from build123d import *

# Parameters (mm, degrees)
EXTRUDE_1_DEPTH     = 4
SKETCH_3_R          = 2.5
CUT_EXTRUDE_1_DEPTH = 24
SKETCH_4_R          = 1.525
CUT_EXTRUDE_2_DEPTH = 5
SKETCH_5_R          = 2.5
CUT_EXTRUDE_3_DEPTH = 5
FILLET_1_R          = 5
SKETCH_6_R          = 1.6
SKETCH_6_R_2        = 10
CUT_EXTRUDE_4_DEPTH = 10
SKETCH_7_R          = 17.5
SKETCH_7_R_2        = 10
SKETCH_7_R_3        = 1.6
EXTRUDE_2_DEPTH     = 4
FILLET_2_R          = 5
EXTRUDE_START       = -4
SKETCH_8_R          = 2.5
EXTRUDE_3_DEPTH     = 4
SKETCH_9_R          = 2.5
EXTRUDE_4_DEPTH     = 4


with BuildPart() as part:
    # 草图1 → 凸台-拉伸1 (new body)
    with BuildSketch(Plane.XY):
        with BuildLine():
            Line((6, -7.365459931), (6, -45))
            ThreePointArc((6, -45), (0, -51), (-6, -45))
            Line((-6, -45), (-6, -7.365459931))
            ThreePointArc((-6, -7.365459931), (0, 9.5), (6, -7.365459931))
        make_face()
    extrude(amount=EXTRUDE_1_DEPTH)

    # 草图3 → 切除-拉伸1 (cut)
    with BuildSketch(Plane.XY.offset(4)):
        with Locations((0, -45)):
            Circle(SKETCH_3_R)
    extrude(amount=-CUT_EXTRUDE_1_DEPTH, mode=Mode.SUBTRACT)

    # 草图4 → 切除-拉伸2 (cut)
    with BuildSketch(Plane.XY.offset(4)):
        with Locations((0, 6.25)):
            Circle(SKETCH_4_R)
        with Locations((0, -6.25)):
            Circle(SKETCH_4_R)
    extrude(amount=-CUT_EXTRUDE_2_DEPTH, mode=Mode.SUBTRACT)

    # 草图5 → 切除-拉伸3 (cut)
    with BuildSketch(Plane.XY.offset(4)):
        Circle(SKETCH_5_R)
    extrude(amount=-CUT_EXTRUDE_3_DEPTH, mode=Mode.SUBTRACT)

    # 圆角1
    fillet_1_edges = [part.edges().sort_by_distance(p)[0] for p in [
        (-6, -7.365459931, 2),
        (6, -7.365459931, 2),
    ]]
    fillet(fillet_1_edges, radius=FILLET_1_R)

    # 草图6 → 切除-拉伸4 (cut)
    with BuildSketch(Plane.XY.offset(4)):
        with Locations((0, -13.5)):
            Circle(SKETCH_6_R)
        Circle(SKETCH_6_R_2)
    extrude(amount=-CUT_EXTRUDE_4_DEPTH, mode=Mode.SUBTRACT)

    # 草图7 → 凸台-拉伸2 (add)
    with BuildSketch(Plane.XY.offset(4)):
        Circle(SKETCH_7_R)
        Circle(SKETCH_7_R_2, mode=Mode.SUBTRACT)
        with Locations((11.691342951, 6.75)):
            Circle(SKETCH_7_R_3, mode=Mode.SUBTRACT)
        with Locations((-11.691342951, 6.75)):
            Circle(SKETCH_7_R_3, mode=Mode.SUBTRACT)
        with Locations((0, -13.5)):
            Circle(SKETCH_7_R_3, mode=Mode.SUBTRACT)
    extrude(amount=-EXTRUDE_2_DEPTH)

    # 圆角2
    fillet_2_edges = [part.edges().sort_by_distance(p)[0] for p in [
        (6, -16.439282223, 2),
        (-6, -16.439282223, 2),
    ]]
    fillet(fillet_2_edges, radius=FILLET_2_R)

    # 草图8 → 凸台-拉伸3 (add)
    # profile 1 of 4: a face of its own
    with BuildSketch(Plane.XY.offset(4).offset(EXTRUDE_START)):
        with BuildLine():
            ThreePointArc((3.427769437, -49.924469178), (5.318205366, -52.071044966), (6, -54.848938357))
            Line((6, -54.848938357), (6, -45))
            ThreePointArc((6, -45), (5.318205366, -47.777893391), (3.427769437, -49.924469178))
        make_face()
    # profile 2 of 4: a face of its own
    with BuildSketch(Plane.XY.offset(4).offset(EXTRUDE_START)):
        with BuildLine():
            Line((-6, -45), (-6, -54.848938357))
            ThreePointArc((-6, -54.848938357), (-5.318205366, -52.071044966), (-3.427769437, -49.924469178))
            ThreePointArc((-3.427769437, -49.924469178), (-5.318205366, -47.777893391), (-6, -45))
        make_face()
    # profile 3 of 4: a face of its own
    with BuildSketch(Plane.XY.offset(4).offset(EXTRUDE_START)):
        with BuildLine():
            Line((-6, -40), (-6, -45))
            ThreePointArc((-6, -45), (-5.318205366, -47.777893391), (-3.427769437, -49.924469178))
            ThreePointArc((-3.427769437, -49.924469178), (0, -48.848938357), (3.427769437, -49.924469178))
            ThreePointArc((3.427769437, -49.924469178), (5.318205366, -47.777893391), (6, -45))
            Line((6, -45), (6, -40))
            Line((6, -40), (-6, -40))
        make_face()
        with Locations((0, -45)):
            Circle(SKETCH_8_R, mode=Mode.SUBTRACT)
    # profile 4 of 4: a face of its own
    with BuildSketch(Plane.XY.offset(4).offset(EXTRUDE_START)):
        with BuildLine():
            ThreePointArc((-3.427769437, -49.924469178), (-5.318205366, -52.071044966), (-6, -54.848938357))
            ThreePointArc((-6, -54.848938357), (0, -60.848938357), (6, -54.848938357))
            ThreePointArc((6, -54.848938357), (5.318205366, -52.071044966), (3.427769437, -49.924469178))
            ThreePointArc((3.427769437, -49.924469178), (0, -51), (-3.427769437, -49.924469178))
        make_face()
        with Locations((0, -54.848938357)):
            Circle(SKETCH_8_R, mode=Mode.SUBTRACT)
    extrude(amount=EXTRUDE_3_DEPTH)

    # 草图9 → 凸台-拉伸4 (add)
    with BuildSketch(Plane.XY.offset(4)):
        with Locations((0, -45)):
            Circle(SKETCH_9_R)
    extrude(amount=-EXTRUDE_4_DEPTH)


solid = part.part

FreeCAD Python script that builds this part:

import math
import FreeCAD as App
import Part
import Sketcher

V = App.Vector


def edges_at(feature, points):
    """Names of the edges that pass closest to the given points."""
    edges = feature.Shape.Edges
    near = lambda p: min(range(len(edges)), key=lambda i: edges[i].distToShape(Part.Vertex(*p))[0])
    return sorted({f"Edge{near(p) + 1}" for p in points})

doc = App.newDocument("Part")
params = doc.addObject("Spreadsheet::Sheet", "Params")
for row, (alias, value) in enumerate([
    ("sketch1_radius", "6 mm"),
    ("sketch1_radius2", "9.5 mm"),
    ("pad1_length", "4 mm"),
    ("sketch2_diameter", "5 mm"),
    ("pocket1_length", "24 mm"),
    ("sketch3_diameter", "3.05 mm"),
    ("pocket2_length", "5 mm"),
    ("sketch4_diameter", "5 mm"),
    ("pocket3_length", "5 mm"),
    ("fillet_radius", "5 mm"),
    ("sketch5_diameter", "20 mm"),
    ("sketch5_diameter2", "3.2 mm"),
    ("pocket4_length", "10 mm"),
    ("sketch6_diameter", "35 mm"),
    ("sketch6_diameter2", "20 mm"),
    ("sketch6_diameter3", "3.2 mm"),
    ("pad2_length", "4 mm"),
    ("fillet2_radius", "5 mm"),
    ("sketch7_diameter", "5 mm"),
    ("sketch7_radius", "6 mm"),
    ("pad3_length", "4 mm"),
    ("sketch8_diameter", "5 mm"),
    ("pad4_length", "4 mm"),
], start=1):
    params.set(f"A{row}", alias)
    params.set(f"B{row}", "=" + value)
    params.setAlias(f"B{row}", alias)

body = doc.addObject("PartDesign::Body", "Body")

sketch1 = body.newObject("Sketcher::SketchObject", "Sketch")
sketch1.AttachmentSupport = (doc.getObject("XY_Plane"), [""])
sketch1.MapMode = "FlatFace"
sketch1.addGeometry(Part.LineSegment(V(6, -45, 0), V(6, -7.36546, 0)), False)
sketch1.addGeometry(Part.ArcOfCircle(Part.Circle(V(0, 0, 0), V(0, 0, 1), 9.5), math.radians(-50.833289), math.radians(230.833289)), False)
sketch1.addGeometry(Part.LineSegment(V(-6, -7.36546, 0), V(-6, -45, 0)), False)
sketch1.addGeometry(Part.ArcOfCircle(Part.Circle(V(0, -45, 0), V(0, 0, 1), 6), math.radians(180), math.radians(360)), False)
sketch1.addConstraint(Sketcher.Constraint("Coincident", 0, 2, 1, 1))
sketch1.addConstraint(Sketcher.Constraint("Coincident", 1, 2, 2, 1))
sketch1.addConstraint(Sketcher.Constraint("Tangent", 2, 2, 3, 1))
sketch1.addConstraint(Sketcher.Constraint("Tangent", 3, 2, 0, 1))
sketch1.addConstraint(Sketcher.Constraint("Vertical", 0))
sketch1.addConstraint(Sketcher.Constraint("Vertical", 2))
sketch1.addConstraint(Sketcher.Constraint("Coincident", 1, 3, -1, 1))
sketch1.addConstraint(Sketcher.Constraint("PointOnObject", 3, 3, -2))
sketch1.addConstraint(Sketcher.Constraint("Radius", 3, 6.0))
sketch1.addConstraint(Sketcher.Constraint("Radius", 1, 9.5))
sketch1.addConstraint(Sketcher.Constraint("DistanceY", 3, 3, -1, 1, 45.0))
sketch1.setExpression("Constraints[8]", "Params.sketch1_radius")
sketch1.setExpression("Constraints[9]", "Params.sketch1_radius2")
pad1 = body.newObject("PartDesign::Pad", "Pad")
pad1.Profile = sketch1
pad1.setExpression("Length", "Params.pad1_length")

sketch2 = body.newObject("Sketcher::SketchObject", "Sketch001")
sketch2.AttachmentSupport = (doc.getObject("XY_Plane"), [""])
sketch2.MapMode = "FlatFace"
sketch2.AttachmentOffset = App.Placement(V(0, 0, 4), App.Rotation())
sketch2.addGeometry(Part.Circle(V(0, -45, 0), V(0, 0, 1), 2.5), False)
sketch2.addConstraint(Sketcher.Constraint("PointOnObject", 0, 3, -2))
sketch2.addConstraint(Sketcher.Constraint("Diameter", 0, 5.0))
sketch2.addConstraint(Sketcher.Constraint("DistanceY", 0, 3, -1, 1, 45.0))
sketch2.setExpression("Constraints[1]", "Params.sketch2_diameter")
pocket1 = body.newObject("PartDesign::Pocket", "Pocket")
pocket1.Profile = sketch2
pocket1.setExpression("Length", "Params.pocket1_length")

sketch3 = body.newObject("Sketcher::SketchObject", "Sketch002")
sketch3.AttachmentSupport = (doc.getObject("XY_Plane"), [""])
sketch3.MapMode = "FlatFace"
sketch3.AttachmentOffset = App.Placement(V(0, 0, 4), App.Rotation())
sketch3.addGeometry(Part.Circle(V(0, 6.25, 0), V(0, 0, 1), 1.525), False)
sketch3.addGeometry(Part.Circle(V(0, -6.25, 0), V(0, 0, 1), 1.525), False)
sketch3.addConstraint(Sketcher.Constraint("Equal", 0, 1))
sketch3.addConstraint(Sketcher.Constraint("Symmetric", 0, 3, 1, 3, -1, 1))
sketch3.addConstraint(Sketcher.Constraint("PointOnObject", 0, 3, -2))
sketch3.addConstraint(Sketcher.Constraint("Diameter", 0, 3.05))
sketch3.addConstraint(Sketcher.Constraint("DistanceY", 1, 3, 0, 3, 12.5))
sketch3.setExpression("Constraints[3]", "Params.sketch3_diameter")
pocket2 = body.newObject("PartDesign::Pocket", "Pocket001")
pocket2.Profile = sketch3
pocket2.setExpression("Length", "Params.pocket2_length")

sketch4 = body.newObject("Sketcher::SketchObject", "Sketch003")
sketch4.AttachmentSupport = (doc.getObject("XY_Plane"), [""])
sketch4.MapMode = "FlatFace"
sketch4.AttachmentOffset = App.Placement(V(0, 0, 4), App.Rotation())
sketch4.addGeometry(Part.Circle(V(0, 0, 0), V(0, 0, 1), 2.5), False)
sketch4.addConstraint(Sketcher.Constraint("Coincident", 0, 3, -1, 1))
sketch4.addConstraint(Sketcher.Constraint("Diameter", 0, 5.0))
sketch4.setExpression("Constraints[1]", "Params.sketch4_diameter")
pocket3 = body.newObject("PartDesign::Pocket", "Pocket002")
pocket3.Profile = sketch4
pocket3.setExpression("Length", "Params.pocket3_length")
doc.recompute()

fillet = body.newObject("PartDesign::Fillet", "Fillet")
fillet.Base = (pocket3, edges_at(pocket3, [(-6, -7.365, 2), (6, -7.365, 2)]))
fillet.setExpression("Radius", "Params.fillet_radius")

sketch5 = body.newObject("Sketcher::SketchObject", "Sketch004")
sketch5.AttachmentSupport = (doc.getObject("XY_Plane"), [""])
sketch5.MapMode = "FlatFace"
sketch5.AttachmentOffset = App.Placement(V(0, 0, 4), App.Rotation())
sketch5.addGeometry(Part.Circle(V(0, -13.5, 0), V(0, 0, 1), 1.6), False)
sketch5.addGeometry(Part.Circle(V(0, 0, 0), V(0, 0, 1), 10), False)
sketch5.addConstraint(Sketcher.Constraint("Coincident", 1, 3, -1, 1))
sketch5.addConstraint(Sketcher.Constraint("PointOnObject", 0, 3, -2))
sketch5.addConstraint(Sketcher.Constraint("Diameter", 1, 20.0))
sketch5.addConstraint(Sketcher.Constraint("Diameter", 0, 3.2))
sketch5.addConstraint(Sketcher.Constraint("DistanceY", 0, 3, -1, 1, 13.5))
sketch5.setExpression("Constraints[2]", "Params.sketch5_diameter")
sketch5.setExpression("Constraints[3]", "Params.sketch5_diameter2")
pocket4 = body.newObject("PartDesign::Pocket", "Pocket003")
pocket4.Profile = sketch5
pocket4.setExpression("Length", "Params.pocket4_length")

sketch6 = body.newObject("Sketcher::SketchObject", "Sketch005")
sketch6.AttachmentSupport = (doc.getObject("XY_Plane"), [""])
sketch6.MapMode = "FlatFace"
sketch6.AttachmentOffset = App.Placement(V(0, 0, 4), App.Rotation())
sketch6.addGeometry(Part.Circle(V(0, 0, 0), V(0, 0, 1), 17.5), False)
sketch6.addGeometry(Part.Circle(V(0, -13.5, 0), V(0, 0, 1), 1.6), False)
sketch6.addGeometry(Part.Circle(V(-11.691343, 6.75, 0), V(0, 0, 1), 1.6), False)
sketch6.addGeometry(Part.Circle(V(0, 0, 0), V(0, 0, 1), 10), False)
sketch6.addGeometry(Part.Circle(V(11.691343, 6.75, 0), V(0, 0, 1), 1.6), False)
sketch6.addConstraint(Sketcher.Constraint("Coincident", 0, 3, -1, 1))
sketch6.addConstraint(Sketcher.Constraint("Coincident", 3, 3, -1, 1))
sketch6.addConstraint(Sketcher.Constraint("Equal", 1, 2))
sketch6.addConstraint(Sketcher.Constraint("Equal", 2, 4))
sketch6.addConstraint(Sketcher.Constraint("Symmetric", 2, 3, 4, 3, -2))
sketch6.addConstraint(Sketcher.Constraint("PointOnObject", 1, 3, -2))
sketch6.addConstraint(Sketcher.Constraint("Diameter", 0, 35.0))
sketch6.addConstraint(Sketcher.Constraint("Diameter", 3, 20.0))
sketch6.addConstraint(Sketcher.Constraint("Diameter", 1, 3.2))
sketch6.addConstraint(Sketcher.Constraint("DistanceY", 1, 3, -1, 1, 13.5))
sketch6.addConstraint(Sketcher.Constraint("DistanceY", -1, 1, 2, 3, 6.75))
sketch6.addConstraint(Sketcher.Constraint("DistanceX", 2, 3, -1, 1, 11.691343))
sketch6.setExpression("Constraints[6]", "Params.sketch6_diameter")
sketch6.setExpression("Constraints[7]", "Params.sketch6_diameter2")
sketch6.setExpression("Constraints[8]", "Params.sketch6_diameter3")
pad2 = body.newObject("PartDesign::Pad", "Pad001")
pad2.Profile = sketch6
pad2.setExpression("Length", "Params.pad2_length")
pad2.Reversed = True
doc.recompute()

fillet2 = body.newObject("PartDesign::Fillet", "Fillet001")
fillet2.Base = (pad2, edges_at(pad2, [(6, -16.439, 2), (-6, -16.439, 2)]))
fillet2.setExpression("Radius", "Params.fillet2_radius")

sketch7 = body.newObject("Sketcher::SketchObject", "Sketch006")
sketch7.AttachmentSupport = (doc.getObject("XY_Plane"), [""])
sketch7.MapMode = "FlatFace"
sketch7.addGeometry(Part.LineSegment(V(6, -54.848938, 0), V(6, -40, 0)), False)
sketch7.addGeometry(Part.LineSegment(V(6, -40, 0), V(-6, -40, 0)), False)
sketch7.addGeometry(Part.LineSegment(V(-6, -40, 0), V(-6, -54.848938, 0)), False)
sketch7.addGeometry(Part.ArcOfCircle(Part.Circle(V(0, -54.848938, 0), V(0, 0, 1), 6), math.radians(180), math.radians(360)), False)
sketch7.addGeometry(Part.ArcOfCircle(Part.Circle(V(0, -45, 0), V(0, 0, 1), 6), math.radians(-124.840573), math.radians(-55.159427)), False)
sketch7.addGeometry(Part.ArcOfCircle(Part.Circle(V(0, -54.848938, 0), V(0, 0, 1), 6), math.radians(55.159427), math.radians(124.840573)), False)
sketch7.addGeometry(Part.Circle(V(0, -54.848938, 0), V(0, 0, 1), 2.5), False)
sketch7.addGeometry(Part.Circle(V(0, -45, 0), V(0, 0, 1), 2.5), False)
sketch7.addConstraint(Sketcher.Constraint("Coincident", 0, 2, 1, 1))
sketch7.addConstraint(Sketcher.Constraint("Coincident", 1, 2, 2, 1))
sketch7.addConstraint(Sketcher.Constraint("Tangent", 2, 2, 3, 1))
sketch7.addConstraint(Sketcher.Constraint("Tangent", 3, 2, 0, 1))
sketch7.addConstraint(Sketcher.Constraint("Coincident", 4, 1, 5, 2))
sketch7.addConstraint(Sketcher.Constraint("Coincident", 5, 1, 4, 2))
sketch7.addConstraint(Sketcher.Constraint("Vertical", 0))
sketch7.addConstraint(Sketcher.Constraint("Horizontal", 1))
sketch7.addConstraint(Sketcher.Constraint("Vertical", 2))
sketch7.addConstraint(Sketcher.Constraint("Coincident", 5, 3, 3, 3))
sketch7.addConstraint(Sketcher.Constraint("Coincident", 6, 3, 3, 3))
sketch7.addConstraint(Sketcher.Constraint("Coincident", 7, 3, 4, 3))
sketch7.addConstraint(Sketcher.Constraint("Equal", 3, 4))
sketch7.addConstraint(Sketcher.Constraint("Equal", 4, 5))
sketch7.addConstraint(Sketcher.Constraint("Equal", 6, 7))
sketch7.addConstraint(Sketcher.Constraint("Symmetric", 4, 1, 5, 1, -2))
sketch7.addConstraint(Sketcher.Constraint("Diameter", 6, 5.0))
sketch7.addConstraint(Sketcher.Constraint("Radius", 3, 6.0))
sketch7.addConstraint(Sketcher.Constraint("DistanceY", 4, 3, -1, 1, 45.0))
sketch7.addConstraint(Sketcher.Constraint("DistanceY", 0, 2, -1, 1, 40.0))
sketch7.addConstraint(Sketcher.Constraint("DistanceY", 0, 1, 0, 2, 14.848938))
sketch7.setExpression("Constraints[16]", "Params.sketch7_diameter")
sketch7.setExpression("Constraints[17]", "Params.sketch7_radius")
pad3 = body.newObject("PartDesign::Pad", "Pad002")
pad3.Profile = sketch7
pad3.setExpression("Length", "Params.pad3_length")

sketch8 = body.newObject("Sketcher::SketchObject", "Sketch007")
sketch8.AttachmentSupport = (doc.getObject("XY_Plane"), [""])
sketch8.MapMode = "FlatFace"
sketch8.AttachmentOffset = App.Placement(V(0, 0, 4), App.Rotation())
sketch8.addGeometry(Part.Circle(V(0, -45, 0), V(0, 0, 1), 2.5), False)
sketch8.addConstraint(Sketcher.Constraint("PointOnObject", 0, 3, -2))
sketch8.addConstraint(Sketcher.Constraint("Diameter", 0, 5.0))
sketch8.addConstraint(Sketcher.Constraint("DistanceY", 0, 3, -1, 1, 45.0))
sketch8.setExpression("Constraints[1]", "Params.sketch8_diameter")
pad4 = body.newObject("PartDesign::Pad", "Pad003")
pad4.Profile = sketch8
pad4.setExpression("Length", "Params.pad4_length")
pad4.Reversed = True

doc.recompute()
